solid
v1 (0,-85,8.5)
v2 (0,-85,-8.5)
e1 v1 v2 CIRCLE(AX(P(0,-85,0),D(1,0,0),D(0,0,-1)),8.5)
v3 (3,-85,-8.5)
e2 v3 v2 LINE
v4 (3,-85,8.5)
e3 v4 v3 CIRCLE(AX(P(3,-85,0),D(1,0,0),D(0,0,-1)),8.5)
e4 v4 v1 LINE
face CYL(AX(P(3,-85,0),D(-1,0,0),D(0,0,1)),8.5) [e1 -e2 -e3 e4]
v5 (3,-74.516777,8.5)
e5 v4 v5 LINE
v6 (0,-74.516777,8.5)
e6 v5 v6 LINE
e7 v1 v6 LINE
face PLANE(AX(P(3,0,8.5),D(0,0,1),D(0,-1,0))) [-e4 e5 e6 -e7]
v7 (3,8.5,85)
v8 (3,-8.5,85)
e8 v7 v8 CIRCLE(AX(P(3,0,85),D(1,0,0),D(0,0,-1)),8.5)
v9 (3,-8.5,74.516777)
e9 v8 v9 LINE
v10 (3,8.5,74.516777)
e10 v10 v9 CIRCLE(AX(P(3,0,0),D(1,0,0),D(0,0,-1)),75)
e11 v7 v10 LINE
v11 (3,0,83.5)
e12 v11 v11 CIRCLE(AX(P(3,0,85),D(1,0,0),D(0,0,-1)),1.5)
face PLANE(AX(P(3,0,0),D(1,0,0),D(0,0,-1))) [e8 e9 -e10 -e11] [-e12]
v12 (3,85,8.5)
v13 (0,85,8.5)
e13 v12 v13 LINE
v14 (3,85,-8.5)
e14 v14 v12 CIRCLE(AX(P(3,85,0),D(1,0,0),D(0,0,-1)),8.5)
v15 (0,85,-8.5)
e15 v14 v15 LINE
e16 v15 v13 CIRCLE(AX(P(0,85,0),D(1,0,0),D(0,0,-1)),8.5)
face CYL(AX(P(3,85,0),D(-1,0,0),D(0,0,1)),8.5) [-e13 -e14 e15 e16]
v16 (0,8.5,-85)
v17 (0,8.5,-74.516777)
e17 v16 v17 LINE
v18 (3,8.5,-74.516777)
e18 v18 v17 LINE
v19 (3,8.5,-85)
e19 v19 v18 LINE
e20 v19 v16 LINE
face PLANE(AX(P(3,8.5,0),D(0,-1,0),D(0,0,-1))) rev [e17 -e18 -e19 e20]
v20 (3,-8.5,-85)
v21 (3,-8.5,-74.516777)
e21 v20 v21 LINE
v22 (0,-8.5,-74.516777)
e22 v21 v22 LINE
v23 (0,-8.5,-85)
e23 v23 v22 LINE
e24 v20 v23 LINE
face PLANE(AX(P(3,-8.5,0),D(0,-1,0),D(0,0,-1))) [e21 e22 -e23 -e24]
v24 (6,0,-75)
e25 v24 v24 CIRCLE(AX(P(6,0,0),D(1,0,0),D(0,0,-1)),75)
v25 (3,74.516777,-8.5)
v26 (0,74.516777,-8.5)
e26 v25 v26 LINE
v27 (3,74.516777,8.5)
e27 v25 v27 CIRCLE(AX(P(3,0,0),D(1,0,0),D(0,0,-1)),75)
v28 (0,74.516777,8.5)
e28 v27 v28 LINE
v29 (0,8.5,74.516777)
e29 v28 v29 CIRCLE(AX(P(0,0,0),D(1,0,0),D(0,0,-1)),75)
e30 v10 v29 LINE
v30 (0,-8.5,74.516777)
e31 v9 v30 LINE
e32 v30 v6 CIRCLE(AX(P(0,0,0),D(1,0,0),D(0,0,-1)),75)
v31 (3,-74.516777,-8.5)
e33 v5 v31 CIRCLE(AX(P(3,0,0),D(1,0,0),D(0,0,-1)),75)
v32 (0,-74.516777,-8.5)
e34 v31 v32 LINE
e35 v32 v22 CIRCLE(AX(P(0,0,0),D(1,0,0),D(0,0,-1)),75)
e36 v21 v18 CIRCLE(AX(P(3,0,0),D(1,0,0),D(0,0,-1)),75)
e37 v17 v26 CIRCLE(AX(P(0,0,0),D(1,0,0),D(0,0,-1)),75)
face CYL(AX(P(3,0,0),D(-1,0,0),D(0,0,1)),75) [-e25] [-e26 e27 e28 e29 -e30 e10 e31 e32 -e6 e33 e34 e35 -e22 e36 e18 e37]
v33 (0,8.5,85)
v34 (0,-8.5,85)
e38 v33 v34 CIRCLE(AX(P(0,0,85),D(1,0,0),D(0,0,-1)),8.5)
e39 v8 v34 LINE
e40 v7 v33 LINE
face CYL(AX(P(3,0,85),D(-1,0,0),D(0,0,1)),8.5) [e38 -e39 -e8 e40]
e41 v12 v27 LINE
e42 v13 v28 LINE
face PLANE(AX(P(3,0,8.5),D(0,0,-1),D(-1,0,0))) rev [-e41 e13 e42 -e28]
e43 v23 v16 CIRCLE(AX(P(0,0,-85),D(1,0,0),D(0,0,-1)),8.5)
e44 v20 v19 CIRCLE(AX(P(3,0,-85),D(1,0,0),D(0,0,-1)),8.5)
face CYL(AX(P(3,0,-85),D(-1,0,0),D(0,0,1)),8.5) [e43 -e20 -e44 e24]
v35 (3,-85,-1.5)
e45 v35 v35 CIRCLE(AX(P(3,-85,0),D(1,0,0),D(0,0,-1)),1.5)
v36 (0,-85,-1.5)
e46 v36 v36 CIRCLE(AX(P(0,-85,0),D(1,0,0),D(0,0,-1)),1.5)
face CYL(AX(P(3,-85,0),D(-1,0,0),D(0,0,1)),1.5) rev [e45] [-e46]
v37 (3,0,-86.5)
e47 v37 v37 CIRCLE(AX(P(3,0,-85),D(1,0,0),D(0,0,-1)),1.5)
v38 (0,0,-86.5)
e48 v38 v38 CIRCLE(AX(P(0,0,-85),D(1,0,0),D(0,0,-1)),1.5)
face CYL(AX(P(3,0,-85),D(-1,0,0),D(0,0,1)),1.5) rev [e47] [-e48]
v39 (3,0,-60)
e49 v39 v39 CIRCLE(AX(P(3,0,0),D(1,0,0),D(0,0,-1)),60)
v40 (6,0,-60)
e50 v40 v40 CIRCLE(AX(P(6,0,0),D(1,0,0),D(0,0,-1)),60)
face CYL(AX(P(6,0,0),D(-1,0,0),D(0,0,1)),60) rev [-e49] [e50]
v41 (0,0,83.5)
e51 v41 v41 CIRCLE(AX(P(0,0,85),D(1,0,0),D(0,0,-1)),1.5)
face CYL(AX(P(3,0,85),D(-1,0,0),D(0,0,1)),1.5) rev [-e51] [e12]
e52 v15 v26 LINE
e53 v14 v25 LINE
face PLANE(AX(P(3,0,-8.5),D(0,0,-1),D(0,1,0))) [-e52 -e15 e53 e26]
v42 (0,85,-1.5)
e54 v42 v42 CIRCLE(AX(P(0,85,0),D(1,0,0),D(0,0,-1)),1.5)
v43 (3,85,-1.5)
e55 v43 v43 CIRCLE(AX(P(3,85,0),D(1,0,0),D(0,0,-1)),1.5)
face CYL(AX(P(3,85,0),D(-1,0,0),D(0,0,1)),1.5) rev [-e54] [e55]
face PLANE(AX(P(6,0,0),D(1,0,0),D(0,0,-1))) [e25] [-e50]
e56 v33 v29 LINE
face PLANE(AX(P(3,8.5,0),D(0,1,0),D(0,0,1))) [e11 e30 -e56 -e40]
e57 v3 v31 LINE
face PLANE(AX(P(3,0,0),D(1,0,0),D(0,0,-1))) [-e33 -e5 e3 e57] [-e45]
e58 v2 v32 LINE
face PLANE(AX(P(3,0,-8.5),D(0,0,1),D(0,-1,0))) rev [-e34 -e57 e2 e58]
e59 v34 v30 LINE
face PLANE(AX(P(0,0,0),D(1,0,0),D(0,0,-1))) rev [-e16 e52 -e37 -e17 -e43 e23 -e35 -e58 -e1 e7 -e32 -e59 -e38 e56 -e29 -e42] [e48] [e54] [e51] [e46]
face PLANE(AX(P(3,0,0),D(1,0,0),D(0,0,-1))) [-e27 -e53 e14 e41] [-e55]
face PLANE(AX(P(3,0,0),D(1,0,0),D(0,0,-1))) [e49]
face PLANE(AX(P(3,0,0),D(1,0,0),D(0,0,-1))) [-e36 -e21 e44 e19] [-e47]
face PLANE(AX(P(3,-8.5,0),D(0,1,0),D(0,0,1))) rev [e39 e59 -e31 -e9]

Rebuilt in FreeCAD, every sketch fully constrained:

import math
import FreeCAD as App
import Part
import Sketcher
from FreeCAD import Vector

doc = App.newDocument("Part")
params = doc.addObject("Spreadsheet::Sheet", "Params")
for row, (alias, value) in enumerate([
    ("sketch1_diameter", "3 mm"),
    ("sketch1_radius", "75 mm"),
    ("sketch1_radius2", "8.5 mm"),
    ("pad1_length", "3 mm"),
    ("sketch2_diameter", "150 mm"),
    ("sketch2_diameter2", "120 mm"),
    ("pad2_length", "3 mm"),
], start=1):
    params.set(f"A{row}", alias)
    params.set(f"B{row}", "=" + value)
    params.setAlias(f"B{row}", alias)

body = doc.addObject("PartDesign::Body", "Body")

sketch1 = body.newObject("Sketcher::SketchObject", "Sketch")
sketch1.AttachmentSupport = (doc.getObject("YZ_Plane"), [""])
sketch1.MapMode = "FlatFace"
sketch1.addGeometry(Part.ArcOfCircle(Part.Circle(Vector(0, 0, 0), Vector(0, 0, 1), 75), math.radians(-83), math.radians(-7)), False)
sketch1.addGeometry(Part.LineSegment(Vector(74.5, -8.5, 0), Vector(85, -8.5, 0)), False)
sketch1.addGeometry(Part.ArcOfCircle(Part.Circle(Vector(85, 0, 0), Vector(0, 0, 1), 8.5), math.radians(-90), math.radians(90)), False)
sketch1.addGeometry(Part.LineSegment(Vector(85, 8.5, 0), Vector(74.5, 8.5, 0)), False)
sketch1.addGeometry(Part.ArcOfCircle(Part.Circle(Vector(0, 0, 0), Vector(0, 0, 1), 75), math.radians(7), math.radians(83)), False)
sketch1.addGeometry(Part.LineSegment(Vector(8.5, 74.5, 0), Vector(8.5, 85, 0)), False)
sketch1.addGeometry(Part.ArcOfCircle(Part.Circle(Vector(0, 85, 0), Vector(0, 0, 1), 8.5), math.radians(0), math.radians(180)), False)
sketch1.addGeometry(Part.LineSegment(Vector(-8.5, 85, 0), Vector(-8.5, 74.5, 0)), False)
sketch1.addGeometry(Part.ArcOfCircle(Part.Circle(Vector(0, 0, 0), Vector(0, 0, 1), 75), math.radians(97), math.radians(173)), False)
sketch1.addGeometry(Part.LineSegment(Vector(-74.5, 8.5, 0), Vector(-85, 8.5, 0)), False)
sketch1.addGeometry(Part.ArcOfCircle(Part.Circle(Vector(-85, 0, 0), Vector(0, 0, 1), 8.5), math.radians(90), math.radians(270)), False)
sketch1.addGeometry(Part.LineSegment(Vector(-85, -8.5, 0), Vector(-74.5, -8.5, 0)), False)
sketch1.addGeometry(Part.ArcOfCircle(Part.Circle(Vector(0, 0, 0), Vector(0, 0, 1), 75), math.radians(-173), math.radians(-97)), False)
sketch1.addGeometry(Part.LineSegment(Vector(-8.5, -74.5, 0), Vector(-8.5, -85, 0)), False)
sketch1.addGeometry(Part.ArcOfCircle(Part.Circle(Vector(0, -85, 0), Vector(0, 0, 1), 8.5), math.radians(180), math.radians(360)), False)
sketch1.addGeometry(Part.LineSegment(Vector(8.5, -85, 0), Vector(8.5, -74.5, 0)), False)
sketch1.addGeometry(Part.Circle(Vector(0, -85, 0), Vector(0, 0, 1), 1.5), False)
sketch1.addGeometry(Part.ArcOfCircle(Part.Circle(Vector(85, 0, 0), Vector(0, 0, 1), 1.5), math.radians(-90), math.radians(180)), False)
sketch1.addGeometry(Part.ArcOfCircle(Part.Circle(Vector(85, 0, 0), Vector(0, 0, 1), 1.5), math.radians(180), math.radians(270)), False)
sketch1.addGeometry(Part.Circle(Vector(0, 85, 0), Vector(0, 0, 1), 1.5), False)
sketch1.addGeometry(Part.ArcOfCircle(Part.Circle(Vector(-85, 0, 0), Vector(0, 0, 1), 1.5), math.radians(-90), math.radians(0)), False)
sketch1.addGeometry(Part.ArcOfCircle(Part.Circle(Vector(-85, 0, 0), Vector(0, 0, 1), 1.5), math.radians(0), math.radians(270)), False)
sketch1.addConstraint(Sketcher.Constraint("Coincident", 0, 2, 1, 1))
sketch1.addConstraint(Sketcher.Constraint("Tangent", 1, 2, 2, 1))
sketch1.addConstraint(Sketcher.Constraint("Tangent", 2, 2, 3, 1))
sketch1.addConstraint(Sketcher.Constraint("Coincident", 3, 2, 4, 1))
sketch1.addConstraint(Sketcher.Constraint("Coincident", 4, 2, 5, 1))
sketch1.addConstraint(Sketcher.Constraint("Tangent", 5, 2, 6, 1))
sketch1.addConstraint(Sketcher.Constraint("Tangent", 6, 2, 7, 1))
sketch1.addConstraint(Sketcher.Constraint("Coincident", 7, 2, 8, 1))
sketch1.addConstraint(Sketcher.Constraint("Coincident", 8, 2, 9, 1))
sketch1.addConstraint(Sketcher.Constraint("Tangent", 9, 2, 10, 1))
sketch1.addConstraint(Sketcher.Constraint("Tangent", 10, 2, 11, 1))
sketch1.addConstraint(Sketcher.Constraint("Coincident", 11, 2, 12, 1))
sketch1.addConstraint(Sketcher.Constraint("Coincident", 12, 2, 13, 1))
sketch1.addConstraint(Sketcher.Constraint("Tangent", 13, 2, 14, 1))
sketch1.addConstraint(Sketcher.Constraint("Tangent", 14, 2, 15, 1))
sketch1.addConstraint(Sketcher.Constraint("Coincident", 15, 2, 0, 1))
sketch1.addConstraint(Sketcher.Constraint("Tangent", 17, 1, 18, 2))
sketch1.addConstraint(Sketcher.Constraint("Coincident", 18, 1, 17, 2))
sketch1.addConstraint(Sketcher.Constraint("Tangent", 20, 1, 21, 2))
sketch1.addConstraint(Sketcher.Constraint("Coincident", 21, 1, 20, 2))
sketch1.addConstraint(Sketcher.Constraint("Horizontal", 1))
sketch1.addConstraint(Sketcher.Constraint("Horizontal", 3))
sketch1.addConstraint(Sketcher.Constraint("Vertical", 5))
sketch1.addConstraint(Sketcher.Constraint("Vertical", 7))
sketch1.addConstraint(Sketcher.Constraint("Horizontal", 9))
sketch1.addConstraint(Sketcher.Constraint("Horizontal", 11))
sketch1.addConstraint(Sketcher.Constraint("Vertical", 13))
sketch1.addConstraint(Sketcher.Constraint("Vertical", 15))
sketch1.addConstraint(Sketcher.Constraint("Coincident", 0, 3, -1, 1))
sketch1.addConstraint(Sketcher.Constraint("Coincident", 4, 3, -1, 1))
sketch1.addConstraint(Sketcher.Constraint("Coincident", 8, 3, -1, 1))
sketch1.addConstraint(Sketcher.Constraint("Coincident", 12, 3, -1, 1))
sketch1.addConstraint(Sketcher.Constraint("Coincident", 16, 3, 14, 3))
sketch1.addConstraint(Sketcher.Constraint("Coincident", 17, 3, 2, 3))
sketch1.addConstraint(Sketcher.Constraint("Coincident", 19, 3, 6, 3))
sketch1.addConstraint(Sketcher.Constraint("Coincident", 20, 3, 10, 3))
sketch1.addConstraint(Sketcher.Constraint("Equal", 0, 4))
sketch1.addConstraint(Sketcher.Constraint("Equal", 2, 6))
sketch1.addConstraint(Sketcher.Constraint("Equal", 4, 8))
sketch1.addConstraint(Sketcher.Constraint("Equal", 6, 10))
sketch1.addConstraint(Sketcher.Constraint("Equal", 8, 12))
sketch1.addConstraint(Sketcher.Constraint("Equal", 10, 14))
sketch1.addConstraint(Sketcher.Constraint("Equal", 16, 17))
sketch1.addConstraint(Sketcher.Constraint("Equal", 18, 19))
sketch1.addConstraint(Sketcher.Constraint("Equal", 19, 20))
sketch1.addConstraint(Sketcher.Constraint("Symmetric", 2, 3, 10, 3, -1, 1))
sketch1.addConstraint(Sketcher.Constraint("Symmetric", 6, 3, 14, 3, -1, 1))
sketch1.addConstraint(Sketcher.Constraint("Symmetric", 17, 1, 20, 1, -2))
sketch1.addConstraint(Sketcher.Constraint("PointOnObject", 6, 3, -2))
sketch1.addConstraint(Sketcher.Constraint("PointOnObject", 18, 1, -1))
sketch1.addConstraint(Sketcher.Constraint("PointOnObject", 21, 1, -1))
sketch1.addConstraint(Sketcher.Constraint("Vertical", 2, 2, 17, 1))
sketch1.addConstraint(Sketcher.Constraint("Equal", 11, 5))
sketch1.addConstraint(Sketcher.Constraint("Diameter", 16, 3.0))
sketch1.addConstraint(Sketcher.Constraint("Radius", 0, 75.0))
sketch1.addConstraint(Sketcher.Constraint("Radius", 2, 8.5))
sketch1.addConstraint(Sketcher.Constraint("DistanceX", -1, 1, 2, 3, 85.0))
sketch1.setExpression("Constraints[53]", "Params.sketch1_diameter")
sketch1.setExpression("Constraints[54]", "Params.sketch1_radius")
sketch1.setExpression("Constraints[55]", "Params.sketch1_radius2")
pad1 = body.newObject("PartDesign::Pad", "Pad")
pad1.Profile = sketch1
pad1.setExpression("Length", "Params.pad1_length")

sketch2 = body.newObject("Sketcher::SketchObject", "Sketch001")
sketch2.AttachmentSupport = (doc.getObject("YZ_Plane"), [""])
sketch2.MapMode = "FlatFace"
sketch2.AttachmentOffset = App.Placement(Vector(0, 0, 3), App.Rotation())
sketch2.addGeometry(Part.Circle(Vector(0, 0, 0), Vector(0, 0, 1), 75), False)
sketch2.addGeometry(Part.Circle(Vector(0, 0, 0), Vector(0, 0, 1), 60), False)
sketch2.addConstraint(Sketcher.Constraint("Coincident", 0, 3, -1, 1))
sketch2.addConstraint(Sketcher.Constraint("Coincident", 1, 3, -1, 1))
sketch2.addConstraint(Sketcher.Constraint("Diameter", 0, 150.0))
sketch2.addConstraint(Sketcher.Constraint("Diameter", 1, 120.0))
sketch2.setExpression("Constraints[2]", "Params.sketch2_diameter")
sketch2.setExpression("Constraints[3]", "Params.sketch2_diameter2")
pad2 = body.newObject("PartDesign::Pad", "Pad001")
pad2.Profile = sketch2
pad2.setExpression("Length", "Params.pad2_length")

doc.recompute()
